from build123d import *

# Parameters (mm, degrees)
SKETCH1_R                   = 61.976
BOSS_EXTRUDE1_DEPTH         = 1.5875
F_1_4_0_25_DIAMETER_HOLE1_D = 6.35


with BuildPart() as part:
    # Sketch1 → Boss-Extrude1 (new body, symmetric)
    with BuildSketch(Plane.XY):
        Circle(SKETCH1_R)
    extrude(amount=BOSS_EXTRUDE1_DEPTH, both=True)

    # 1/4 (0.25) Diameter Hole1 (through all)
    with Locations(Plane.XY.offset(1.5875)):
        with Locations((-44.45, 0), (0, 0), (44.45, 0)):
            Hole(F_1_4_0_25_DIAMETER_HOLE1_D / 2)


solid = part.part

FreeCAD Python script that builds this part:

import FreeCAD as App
import Part
import Sketcher

V = App.Vector
Q = App.Units.Quantity

doc = App.newDocument("Part")
body = doc.addObject("PartDesign::Body", "Body")

sketch1 = doc.addObject("Sketcher::SketchObject", "Sketch")
body.addObject(sketch1)
sketch1.AttachmentSupport = (doc.XY_Plane, [""])
sketch1.MapMode = "FlatFace"
sketch1.addGeometry(Part.Circle(V(0, 0, 0), V(0, 0, 1), 61.976), False)
sketch1.addConstraint([
    Sketcher.Constraint("Coincident", 0, 3, -1, 1),
    Sketcher.Constraint("Diameter", 0, Q("4.88 in")),
])
pad1 = doc.addObject("PartDesign::Pad", "Pad")
body.addObject(pad1)
pad1.Profile = sketch1
pad1.Length = Q("0.125 in")
pad1.Midplane = True

sketch2 = doc.addObject("Sketcher::SketchObject", "Sketch001")
body.addObject(sketch2)
sketch2.AttachmentSupport = (doc.XY_Plane, [""])
sketch2.MapMode = "FlatFace"
sketch2.AttachmentOffset = App.Placement(V(0, 0, 0.0625 * 25.4), App.Rotation())
sketch2.addGeometry([
    Part.Circle(V(-44.45, 0, 0), V(0, 0, 1), 3.175),
    Part.Circle(V(0, 0, 0), V(0, 0, 1), 3.175),
    Part.Circle(V(44.45, 0, 0), V(0, 0, 1), 3.175),
], False)
sketch2.addConstraint([
    Sketcher.Constraint("Coincident", 1, 3, -1, 1),
    Sketcher.Constraint("Equal", 0, 1),
    Sketcher.Constraint("Equal", 1, 2),
    Sketcher.Constraint("Symmetric", 0, 3, 2, 3, -1, 1),
    Sketcher.Constraint("PointOnObject", 0, 3, -1),
    Sketcher.Constraint("Diameter", 0, Q("0.25 in")),
    Sketcher.Constraint("DistanceX", 0, 3, 2, 3, Q("3.5 in")),
])
doc.recompute()
hole = doc.addObject("PartDesign::Hole", "Hole")
body.addObject(hole)
hole.Profile = sketch2
hole.ThreadType = "None"
hole.Diameter = Q("0.25 in")
hole.DepthType = "ThroughAll"

doc.recompute()
